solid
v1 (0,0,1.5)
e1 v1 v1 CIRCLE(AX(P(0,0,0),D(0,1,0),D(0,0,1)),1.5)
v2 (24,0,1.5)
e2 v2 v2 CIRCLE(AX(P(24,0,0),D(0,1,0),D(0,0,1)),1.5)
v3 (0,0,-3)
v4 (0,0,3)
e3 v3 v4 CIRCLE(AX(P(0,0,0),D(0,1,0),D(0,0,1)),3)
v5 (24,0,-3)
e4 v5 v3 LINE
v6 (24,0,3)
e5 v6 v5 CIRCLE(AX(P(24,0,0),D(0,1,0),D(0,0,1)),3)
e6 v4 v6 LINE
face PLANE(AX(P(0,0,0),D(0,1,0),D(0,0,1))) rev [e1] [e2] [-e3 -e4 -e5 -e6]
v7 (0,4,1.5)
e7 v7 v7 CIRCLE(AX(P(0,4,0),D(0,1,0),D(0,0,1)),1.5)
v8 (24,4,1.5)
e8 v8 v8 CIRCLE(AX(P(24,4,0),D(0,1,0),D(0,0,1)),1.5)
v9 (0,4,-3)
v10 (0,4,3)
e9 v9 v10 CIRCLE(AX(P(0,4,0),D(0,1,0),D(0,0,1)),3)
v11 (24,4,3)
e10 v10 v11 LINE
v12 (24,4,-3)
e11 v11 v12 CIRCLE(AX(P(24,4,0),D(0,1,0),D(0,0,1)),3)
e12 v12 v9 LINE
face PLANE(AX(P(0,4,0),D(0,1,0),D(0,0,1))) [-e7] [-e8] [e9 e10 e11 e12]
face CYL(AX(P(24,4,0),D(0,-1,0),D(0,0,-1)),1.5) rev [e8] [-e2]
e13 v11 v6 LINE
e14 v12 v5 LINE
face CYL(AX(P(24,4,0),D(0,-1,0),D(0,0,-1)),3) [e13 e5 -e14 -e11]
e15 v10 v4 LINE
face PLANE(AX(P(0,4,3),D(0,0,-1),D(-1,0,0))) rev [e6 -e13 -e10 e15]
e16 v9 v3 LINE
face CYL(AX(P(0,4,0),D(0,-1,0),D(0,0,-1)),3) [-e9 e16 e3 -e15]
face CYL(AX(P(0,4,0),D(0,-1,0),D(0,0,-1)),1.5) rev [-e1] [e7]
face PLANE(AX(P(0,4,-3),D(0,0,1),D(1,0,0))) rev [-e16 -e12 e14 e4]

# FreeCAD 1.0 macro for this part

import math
import FreeCAD as App
import Part
import Sketcher
from FreeCAD import Vector

doc = App.newDocument("Part")
body = doc.addObject("PartDesign::Body", "Body")

sketch1 = body.newObject("Sketcher::SketchObject", "Sketch")
sketch1.AttachmentSupport = (doc.getObject("XZ_Plane"), [""])
sketch1.MapMode = "FlatFace"
sketch1.addGeometry(Part.LineSegment(Vector(24, -3, 0), Vector(0, -3, 0)), False)
sketch1.addGeometry(Part.ArcOfCircle(Part.Circle(Vector(0, 0, 0), Vector(0, 0, 1), 3), math.radians(90), math.radians(270)), False)
sketch1.addGeometry(Part.LineSegment(Vector(0, 3, 0), Vector(24, 3, 0)), False)
sketch1.addGeometry(Part.ArcOfCircle(Part.Circle(Vector(24, 0, 0), Vector(0, 0, 1), 3), math.radians(-90), math.radians(90)), False)
sketch1.addGeometry(Part.Circle(Vector(24, 0, 0), Vector(0, 0, 1), 1.5), False)
sketch1.addGeometry(Part.Circle(Vector(0, 0, 0), Vector(0, 0, 1), 1.5), False)
sketch1.addConstraint(Sketcher.Constraint("Tangent", 0, 2, 1, 2))
sketch1.addConstraint(Sketcher.Constraint("Tangent", 1, 1, 2, 1))
sketch1.addConstraint(Sketcher.Constraint("Tangent", 2, 2, 3, 2))
sketch1.addConstraint(Sketcher.Constraint("Tangent", 3, 1, 0, 1))
sketch1.addConstraint(Sketcher.Constraint("Horizontal", 0))
sketch1.addConstraint(Sketcher.Constraint("Horizontal", 2))
sketch1.addConstraint(Sketcher.Constraint("Coincident", 1, 3, -1, 1))
sketch1.addConstraint(Sketcher.Constraint("Coincident", 5, 3, -1, 1))
sketch1.addConstraint(Sketcher.Constraint("Coincident", 4, 3, 3, 3))
sketch1.addConstraint(Sketcher.Constraint("Equal", 4, 5))
sketch1.addConstraint(Sketcher.Constraint("Diameter", 4, 3.0))
sketch1.addConstraint(Sketcher.Constraint("Radius", 1, 3.0))
sketch1.addConstraint(Sketcher.Constraint("DistanceX", 0, 2, 0, 1, 24.0))
pad1 = body.newObject("PartDesign::Pad", "Pad")
pad1.Profile = sketch1
pad1.Length = 4
pad1.Reversed = True

doc.recompute()
